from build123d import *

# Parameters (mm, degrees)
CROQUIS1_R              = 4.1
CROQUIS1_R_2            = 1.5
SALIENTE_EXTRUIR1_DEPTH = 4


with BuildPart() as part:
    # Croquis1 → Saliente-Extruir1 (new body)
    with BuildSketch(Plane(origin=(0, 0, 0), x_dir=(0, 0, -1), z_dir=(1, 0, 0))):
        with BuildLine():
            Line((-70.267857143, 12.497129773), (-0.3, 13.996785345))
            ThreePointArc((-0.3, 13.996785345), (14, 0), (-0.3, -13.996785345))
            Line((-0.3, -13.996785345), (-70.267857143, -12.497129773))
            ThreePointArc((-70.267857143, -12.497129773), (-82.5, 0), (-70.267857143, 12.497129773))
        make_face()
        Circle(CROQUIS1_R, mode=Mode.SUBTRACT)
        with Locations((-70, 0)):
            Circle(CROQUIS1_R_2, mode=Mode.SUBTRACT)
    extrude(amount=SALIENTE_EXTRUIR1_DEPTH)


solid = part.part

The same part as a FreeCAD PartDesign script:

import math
import FreeCAD as App
import Part
import Sketcher

doc = App.newDocument("Part")
params = doc.addObject("Spreadsheet::Sheet", "Params")
for row, (alias, value) in enumerate([
    ("sketch1_diameter", "3 mm"),
    ("sketch1_radius", "14 mm"),
    ("sketch1_diameter2", "8.2 mm"),
    ("sketch1_radius2", "12.5 mm"),
    ("pad1_length", "4 mm"),
], start=1):
    params.set(f"A{row}", alias)
    params.set(f"B{row}", "=" + value)
    params.setAlias(f"B{row}", alias)

body = doc.addObject("PartDesign::Body", "Body")

sketch1 = body.newObject("Sketcher::SketchObject", "Sketch")
sketch1.AttachmentSupport = (doc.getObject("YZ_Plane"), [""])
sketch1.MapMode = "FlatFace"
sketch1.addGeometry(Part.LineSegment(App.Vector(14, 0.3, 0), App.Vector(12.5, 70.3, 0)), False)
sketch1.addGeometry(Part.ArcOfCircle(Part.Circle(App.Vector(0, 70, 0), App.Vector(0, 0, 1), 12.5), math.radians(1), math.radians(179)), False)
sketch1.addGeometry(Part.LineSegment(App.Vector(-12.5, 70.3, 0), App.Vector(-14, 0.3, 0)), False)
sketch1.addGeometry(Part.ArcOfCircle(Part.Circle(App.Vector(0, 0, 0), App.Vector(0, 0, 1), 14), math.radians(179), math.radians(361)), False)
sketch1.addGeometry(Part.Circle(App.Vector(0, 0, 0), App.Vector(0, 0, 1), 4.1), False)
sketch1.addGeometry(Part.Circle(App.Vector(0, 70, 0), App.Vector(0, 0, 1), 1.5), False)
sketch1.addConstraint(Sketcher.Constraint("Tangent", 0, 2, 1, 1))
sketch1.addConstraint(Sketcher.Constraint("Tangent", 1, 2, 2, 1))
sketch1.addConstraint(Sketcher.Constraint("Tangent", 2, 2, 3, 1))
sketch1.addConstraint(Sketcher.Constraint("Tangent", 3, 2, 0, 1))
sketch1.addConstraint(Sketcher.Constraint("Coincident", 3, 3, -1, 1))
sketch1.addConstraint(Sketcher.Constraint("Coincident", 4, 3, -1, 1))
sketch1.addConstraint(Sketcher.Constraint("Coincident", 5, 3, 1, 3))
sketch1.addConstraint(Sketcher.Constraint("PointOnObject", 1, 3, -2))
sketch1.addConstraint(Sketcher.Constraint("Diameter", 5, 3.0))
sketch1.addConstraint(Sketcher.Constraint("Radius", 3, 14.0))
sketch1.addConstraint(Sketcher.Constraint("Diameter", 4, 8.2))
sketch1.addConstraint(Sketcher.Constraint("Radius", 1, 12.5))
sketch1.addConstraint(Sketcher.Constraint("DistanceY", -1, 1, 1, 3, 70.0))
sketch1.setExpression("Constraints[8]", "Params.sketch1_diameter")
sketch1.setExpression("Constraints[9]", "Params.sketch1_radius")
sketch1.setExpression("Constraints[10]", "Params.sketch1_diameter2")
sketch1.setExpression("Constraints[11]", "Params.sketch1_radius2")
pad1 = body.newObject("PartDesign::Pad", "Pad")
pad1.Profile = sketch1
pad1.setExpression("Length", "Params.pad1_length")

doc.recompute()
